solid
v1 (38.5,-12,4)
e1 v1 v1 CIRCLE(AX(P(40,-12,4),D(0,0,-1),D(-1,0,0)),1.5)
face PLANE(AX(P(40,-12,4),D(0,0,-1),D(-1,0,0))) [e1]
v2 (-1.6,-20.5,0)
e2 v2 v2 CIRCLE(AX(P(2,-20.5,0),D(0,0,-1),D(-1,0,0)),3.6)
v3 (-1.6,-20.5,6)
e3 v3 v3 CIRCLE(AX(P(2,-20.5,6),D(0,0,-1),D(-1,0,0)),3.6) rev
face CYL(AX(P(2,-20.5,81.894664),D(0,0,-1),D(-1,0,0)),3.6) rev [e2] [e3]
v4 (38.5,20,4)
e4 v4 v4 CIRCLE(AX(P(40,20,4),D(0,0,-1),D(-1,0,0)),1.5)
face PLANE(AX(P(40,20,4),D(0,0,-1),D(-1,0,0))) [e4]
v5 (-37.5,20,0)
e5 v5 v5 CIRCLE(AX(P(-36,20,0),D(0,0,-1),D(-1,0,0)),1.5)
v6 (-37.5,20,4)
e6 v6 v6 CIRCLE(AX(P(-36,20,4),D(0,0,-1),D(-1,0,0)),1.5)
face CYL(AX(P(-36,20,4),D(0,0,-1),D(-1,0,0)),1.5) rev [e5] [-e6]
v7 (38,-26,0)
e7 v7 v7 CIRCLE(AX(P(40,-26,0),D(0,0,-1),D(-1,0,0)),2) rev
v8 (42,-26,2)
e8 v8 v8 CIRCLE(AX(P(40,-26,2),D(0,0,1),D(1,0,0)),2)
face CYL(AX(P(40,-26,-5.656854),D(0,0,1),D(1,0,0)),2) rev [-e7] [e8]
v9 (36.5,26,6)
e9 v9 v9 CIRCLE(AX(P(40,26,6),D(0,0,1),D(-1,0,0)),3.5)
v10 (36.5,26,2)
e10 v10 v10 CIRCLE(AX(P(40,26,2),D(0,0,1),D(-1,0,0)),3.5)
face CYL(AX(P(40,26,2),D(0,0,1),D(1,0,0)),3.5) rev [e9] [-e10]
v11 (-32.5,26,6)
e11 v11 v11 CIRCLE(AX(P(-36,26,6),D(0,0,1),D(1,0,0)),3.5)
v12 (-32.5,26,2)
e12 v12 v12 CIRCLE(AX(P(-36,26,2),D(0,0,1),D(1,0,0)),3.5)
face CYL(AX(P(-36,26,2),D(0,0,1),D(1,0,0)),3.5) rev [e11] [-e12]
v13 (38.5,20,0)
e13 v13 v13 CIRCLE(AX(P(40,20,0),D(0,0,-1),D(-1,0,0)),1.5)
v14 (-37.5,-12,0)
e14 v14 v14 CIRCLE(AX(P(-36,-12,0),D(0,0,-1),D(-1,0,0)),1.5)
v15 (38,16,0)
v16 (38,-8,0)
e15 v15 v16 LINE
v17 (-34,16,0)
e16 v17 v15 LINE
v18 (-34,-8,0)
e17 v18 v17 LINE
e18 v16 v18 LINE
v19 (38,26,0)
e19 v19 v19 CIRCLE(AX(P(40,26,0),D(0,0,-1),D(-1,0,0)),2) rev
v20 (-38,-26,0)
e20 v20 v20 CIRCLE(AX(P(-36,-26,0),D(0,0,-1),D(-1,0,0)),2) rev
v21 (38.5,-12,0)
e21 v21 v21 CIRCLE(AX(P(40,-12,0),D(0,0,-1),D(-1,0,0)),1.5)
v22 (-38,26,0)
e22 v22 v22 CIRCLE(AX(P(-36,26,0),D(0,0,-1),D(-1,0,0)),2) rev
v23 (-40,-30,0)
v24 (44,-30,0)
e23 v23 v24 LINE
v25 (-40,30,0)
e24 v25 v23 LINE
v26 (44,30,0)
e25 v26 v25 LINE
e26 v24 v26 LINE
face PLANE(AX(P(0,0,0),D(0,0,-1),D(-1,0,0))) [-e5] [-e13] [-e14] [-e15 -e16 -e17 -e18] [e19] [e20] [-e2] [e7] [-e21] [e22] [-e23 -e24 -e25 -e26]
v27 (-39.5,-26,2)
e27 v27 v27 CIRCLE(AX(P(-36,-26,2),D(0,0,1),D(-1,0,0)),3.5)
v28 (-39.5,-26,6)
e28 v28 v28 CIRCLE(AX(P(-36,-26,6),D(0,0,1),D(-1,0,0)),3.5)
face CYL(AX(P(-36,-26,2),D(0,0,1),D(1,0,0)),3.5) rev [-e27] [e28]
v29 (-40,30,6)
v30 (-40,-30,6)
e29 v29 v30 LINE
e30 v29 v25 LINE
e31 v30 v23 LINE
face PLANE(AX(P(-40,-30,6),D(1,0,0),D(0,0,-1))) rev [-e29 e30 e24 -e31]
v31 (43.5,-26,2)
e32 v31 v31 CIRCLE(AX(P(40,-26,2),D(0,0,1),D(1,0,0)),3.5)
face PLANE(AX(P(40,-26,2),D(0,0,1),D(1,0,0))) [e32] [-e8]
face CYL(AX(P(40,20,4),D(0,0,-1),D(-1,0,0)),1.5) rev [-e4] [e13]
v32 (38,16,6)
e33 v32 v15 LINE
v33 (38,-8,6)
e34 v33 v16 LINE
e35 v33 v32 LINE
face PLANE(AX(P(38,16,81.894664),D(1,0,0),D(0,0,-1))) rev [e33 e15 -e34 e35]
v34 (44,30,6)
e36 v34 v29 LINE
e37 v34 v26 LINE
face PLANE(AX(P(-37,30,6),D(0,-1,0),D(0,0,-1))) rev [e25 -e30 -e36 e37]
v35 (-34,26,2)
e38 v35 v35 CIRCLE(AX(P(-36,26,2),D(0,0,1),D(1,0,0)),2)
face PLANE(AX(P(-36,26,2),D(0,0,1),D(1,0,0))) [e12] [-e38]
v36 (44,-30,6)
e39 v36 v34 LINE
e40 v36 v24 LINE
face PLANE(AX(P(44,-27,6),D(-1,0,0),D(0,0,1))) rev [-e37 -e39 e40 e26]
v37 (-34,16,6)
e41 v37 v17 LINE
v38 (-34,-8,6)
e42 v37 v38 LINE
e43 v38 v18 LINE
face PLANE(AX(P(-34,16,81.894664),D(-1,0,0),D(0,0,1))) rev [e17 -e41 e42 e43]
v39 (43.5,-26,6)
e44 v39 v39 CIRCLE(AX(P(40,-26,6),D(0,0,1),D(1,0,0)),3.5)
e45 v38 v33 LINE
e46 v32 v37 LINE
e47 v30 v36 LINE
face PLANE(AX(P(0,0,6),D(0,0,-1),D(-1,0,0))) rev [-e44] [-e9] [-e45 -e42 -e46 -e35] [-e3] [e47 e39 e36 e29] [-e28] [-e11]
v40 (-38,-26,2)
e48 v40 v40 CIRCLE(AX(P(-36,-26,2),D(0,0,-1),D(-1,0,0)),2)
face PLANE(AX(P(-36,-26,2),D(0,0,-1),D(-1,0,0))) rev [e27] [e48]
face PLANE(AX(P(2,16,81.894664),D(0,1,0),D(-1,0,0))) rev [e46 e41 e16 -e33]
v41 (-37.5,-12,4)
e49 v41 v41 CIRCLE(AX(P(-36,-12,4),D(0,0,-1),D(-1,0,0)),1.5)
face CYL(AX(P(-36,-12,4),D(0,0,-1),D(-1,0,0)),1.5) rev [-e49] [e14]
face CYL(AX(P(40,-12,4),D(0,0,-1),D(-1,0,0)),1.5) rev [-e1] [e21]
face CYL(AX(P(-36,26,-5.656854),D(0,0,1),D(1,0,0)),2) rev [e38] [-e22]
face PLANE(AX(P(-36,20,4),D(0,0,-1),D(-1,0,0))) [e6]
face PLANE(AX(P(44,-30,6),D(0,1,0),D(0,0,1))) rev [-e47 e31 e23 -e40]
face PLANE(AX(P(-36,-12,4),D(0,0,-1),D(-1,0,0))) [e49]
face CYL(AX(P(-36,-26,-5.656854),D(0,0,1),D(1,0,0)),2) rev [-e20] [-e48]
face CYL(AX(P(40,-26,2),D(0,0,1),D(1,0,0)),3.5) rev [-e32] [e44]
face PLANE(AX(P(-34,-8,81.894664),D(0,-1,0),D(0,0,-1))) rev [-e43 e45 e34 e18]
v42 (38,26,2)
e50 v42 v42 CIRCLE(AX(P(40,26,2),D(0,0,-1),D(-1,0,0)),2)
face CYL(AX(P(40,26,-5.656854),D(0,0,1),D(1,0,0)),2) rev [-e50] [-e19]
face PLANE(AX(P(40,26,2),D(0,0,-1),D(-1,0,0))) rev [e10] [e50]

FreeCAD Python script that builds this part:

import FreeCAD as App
import Part
import Sketcher


def add_polygon(sketch, points):
    """Adds a closed chain of lines whose ends are joined by coincident constraints."""
    first, n = sketch.GeometryCount, len(points)
    for a, b in zip(points, points[1:] + points[:1]):
        sketch.addGeometry(Part.LineSegment(App.Vector(*a, 0), App.Vector(*b, 0)), False)
    for i in range(n):
        sketch.addConstraint(Sketcher.Constraint("Coincident", first + i, 2, first + (i + 1) % n, 1))

doc = App.newDocument("Part")
params = doc.addObject("Spreadsheet::Sheet", "Params")
for row, (alias, value) in enumerate([
    ("sketch1_width", "84 mm"),
    ("sketch1_height", "60 mm"),
    ("pad1_length", "6 mm"),
    ("sketch2_diameter", "7 mm"),
    ("pocket1_length", "4 mm"),
    ("sketch3_diameter", "4 mm"),
    ("pocket2_length", "6 mm"),
    ("sketch4_diameter", "7.2 mm"),
    ("sketch4_width", "72 mm"),
    ("sketch4_height", "24 mm"),
    ("pocket3_length", "6 mm"),
    ("sketch5_diameter", "3 mm"),
    ("pocket4_length", "4 mm"),
], start=1):
    params.set(f"A{row}", alias)
    params.set(f"B{row}", "=" + value)
    params.setAlias(f"B{row}", alias)

body = doc.addObject("PartDesign::Body", "Body")

# Sketch on XY plane
sketch1 = doc.addObject("Sketcher::SketchObject", "Sketch")
body.addObject(sketch1)
sketch1.AttachmentSupport = (doc.XY_Plane, [""])
sketch1.MapMode = "FlatFace"
add_polygon(sketch1, [(-40, 30), (-40, -30), (44, -30), (44, 30)])  # lines 0-3
sketch1.addConstraint([
    Sketcher.Constraint("Vertical", 0),
    Sketcher.Constraint("Horizontal", 1),
    Sketcher.Constraint("Vertical", 2),
    Sketcher.Constraint("Horizontal", 3),
    Sketcher.Constraint("DistanceX", 1, 1, 1, 2, 84.0),
    Sketcher.Constraint("DistanceY", 0, 2, 0, 1, 60.0),
    Sketcher.Constraint("DistanceX", 0, 2, -1, 1, 40.0),
    Sketcher.Constraint("DistanceY", 0, 2, -1, 1, 30.0),
])
sketch1.setExpression("Constraints[8]", "Params.sketch1_width")
sketch1.setExpression("Constraints[9]", "Params.sketch1_height")
pad1 = doc.addObject("PartDesign::Pad", "Pad")
body.addObject(pad1)
pad1.Profile = sketch1
pad1.setExpression("Length", "Params.pad1_length")

# Sketch on XY plane
sketch2 = doc.addObject("Sketcher::SketchObject", "Sketch001")
body.addObject(sketch2)
sketch2.AttachmentSupport = (doc.XY_Plane, [""])
sketch2.MapMode = "FlatFace"
sketch2.AttachmentOffset = App.Placement(App.Vector(0, 0, 6), App.Rotation())
sketch2.addGeometry([
    Part.Circle(App.Vector(-36, 26, 0), App.Vector(0, 0, 1), 3.5),
    Part.Circle(App.Vector(40, 26, 0), App.Vector(0, 0, 1), 3.5),
    Part.Circle(App.Vector(40, -26, 0), App.Vector(0, 0, 1), 3.5),
    Part.Circle(App.Vector(-36, -26, 0), App.Vector(0, 0, 1), 3.5),
], False)
sketch2.addConstraint([
    Sketcher.Constraint("Equal", 0, 1),
    Sketcher.Constraint("Equal", 1, 2),
    Sketcher.Constraint("Equal", 2, 3),
    Sketcher.Constraint("Symmetric", 1, 3, 2, 3, -1),
    Sketcher.Constraint("Symmetric", 0, 3, 3, 3, -1),
    Sketcher.Constraint("Horizontal", 0, 3, 1, 3),
    Sketcher.Constraint("Diameter", 0, 7.0),
    Sketcher.Constraint("DistanceX", 0, 3, -1, 1, 36.0),
    Sketcher.Constraint("DistanceY", -1, 1, 0, 3, 26.0),
    Sketcher.Constraint("DistanceX", -1, 1, 1, 3, 40.0),
])
sketch2.setExpression("Constraints[6]", "Params.sketch2_diameter")
pocket1 = doc.addObject("PartDesign::Pocket", "Pocket")
body.addObject(pocket1)
pocket1.Profile = sketch2
pocket1.setExpression("Length", "Params.pocket1_length")

# Sketch on XY plane
sketch3 = doc.addObject("Sketcher::SketchObject", "Sketch002")
body.addObject(sketch3)
sketch3.AttachmentSupport = (doc.XY_Plane, [""])
sketch3.MapMode = "FlatFace"
sketch3.AttachmentOffset = App.Placement(App.Vector(0, 0, 6), App.Rotation())
sketch3.addGeometry([
    Part.Circle(App.Vector(-36, 26, 0), App.Vector(0, 0, 1), 2),
    Part.Circle(App.Vector(40, 26, 0), App.Vector(0, 0, 1), 2),
    Part.Circle(App.Vector(40, -26, 0), App.Vector(0, 0, 1), 2),
    Part.Circle(App.Vector(-36, -26, 0), App.Vector(0, 0, 1), 2),
], False)
sketch3.addConstraint([
    Sketcher.Constraint("Equal", 0, 1),
    Sketcher.Constraint("Equal", 1, 2),
    Sketcher.Constraint("Equal", 2, 3),
    Sketcher.Constraint("Symmetric", 1, 3, 2, 3, -1),
    Sketcher.Constraint("Symmetric", 0, 3, 3, 3, -1),
    Sketcher.Constraint("Horizontal", 0, 3, 1, 3),
    Sketcher.Constraint("Diameter", 0, 4.0),
    Sketcher.Constraint("DistanceX", 0, 3, -1, 1, 36.0),
    Sketcher.Constraint("DistanceY", -1, 1, 0, 3, 26.0),
    Sketcher.Constraint("DistanceX", -1, 1, 1, 3, 40.0),
])
sketch3.setExpression("Constraints[6]", "Params.sketch3_diameter")
pocket2 = doc.addObject("PartDesign::Pocket", "Pocket001")
body.addObject(pocket2)
pocket2.Profile = sketch3
pocket2.setExpression("Length", "Params.pocket2_length")

# Sketch on XY plane
sketch4 = doc.addObject("Sketcher::SketchObject", "Sketch003")
body.addObject(sketch4)
sketch4.AttachmentSupport = (doc.XY_Plane, [""])
sketch4.MapMode = "FlatFace"
sketch4.addGeometry(Part.Circle(App.Vector(2, -20.5, 0), App.Vector(0, 0, 1), 3.6), False)  # 0
add_polygon(sketch4, [(38, -8), (-34, -8), (-34, 16), (38, 16)])  # lines 1-4
sketch4.addConstraint([
    Sketcher.Constraint("Horizontal", 1),
    Sketcher.Constraint("Vertical", 2),
    Sketcher.Constraint("Horizontal", 3),
    Sketcher.Constraint("Vertical", 4),
    Sketcher.Constraint("Diameter", 0, 7.2),
    Sketcher.Constraint("DistanceX", 1, 2, 1, 1, 72.0),
    Sketcher.Constraint("DistanceY", 2, 1, 2, 2, 24.0),
    Sketcher.Constraint("DistanceX", -1, 1, 0, 3, 2.0),
    Sketcher.Constraint("DistanceX", 1, 2, -1, 1, 34.0),
    Sketcher.Constraint("DistanceY", 1, 2, -1, 1, 8.0),
    Sketcher.Constraint("DistanceY", 0, 3, -1, 1, 20.5),
])
sketch4.setExpression("Constraints[8]", "Params.sketch4_diameter")
sketch4.setExpression("Constraints[9]", "Params.sketch4_width")
sketch4.setExpression("Constraints[10]", "Params.sketch4_height")
pocket3 = doc.addObject("PartDesign::Pocket", "Pocket002")
body.addObject(pocket3)
pocket3.Profile = sketch4
pocket3.setExpression("Length", "Params.pocket3_length")
pocket3.Reversed = True

# Sketch on XY plane
sketch5 = doc.addObject("Sketcher::SketchObject", "Sketch004")
body.addObject(sketch5)
sketch5.AttachmentSupport = (doc.XY_Plane, [""])
sketch5.MapMode = "FlatFace"
sketch5.addGeometry([
    Part.Circle(App.Vector(-36, 20, 0), App.Vector(0, 0, 1), 1.5),
    Part.Circle(App.Vector(40, 20, 0), App.Vector(0, 0, 1), 1.5),
    Part.Circle(App.Vector(40, -12, 0), App.Vector(0, 0, 1), 1.5),
    Part.Circle(App.Vector(-36, -12, 0), App.Vector(0, 0, 1), 1.5),
], False)
sketch5.addConstraint([
    Sketcher.Constraint("Equal", 0, 1),
    Sketcher.Constraint("Equal", 1, 2),
    Sketcher.Constraint("Equal", 2, 3),
    Sketcher.Constraint("Horizontal", 0, 3, 1, 3),
    Sketcher.Constraint("Horizontal", 2, 3, 3, 3),
    Sketcher.Constraint("Vertical", 1, 3, 2, 3),
    Sketcher.Constraint("Vertical", 0, 3, 3, 3),
    Sketcher.Constraint("Diameter", 0, 3.0),
    Sketcher.Constraint("DistanceX", 0, 3, -1, 1, 36.0),
    Sketcher.Constraint("DistanceY", -1, 1, 0, 3, 20.0),
    Sketcher.Constraint("DistanceX", -1, 1, 1, 3, 40.0),
    Sketcher.Constraint("DistanceY", 2, 3, -1, 1, 12.0),
])
sketch5.setExpression("Constraints[7]", "Params.sketch5_diameter")
pocket4 = doc.addObject("PartDesign::Pocket", "Pocket003")
body.addObject(pocket4)
pocket4.Profile = sketch5
pocket4.setExpression("Length", "Params.pocket4_length")
pocket4.Reversed = True

doc.recompute()
